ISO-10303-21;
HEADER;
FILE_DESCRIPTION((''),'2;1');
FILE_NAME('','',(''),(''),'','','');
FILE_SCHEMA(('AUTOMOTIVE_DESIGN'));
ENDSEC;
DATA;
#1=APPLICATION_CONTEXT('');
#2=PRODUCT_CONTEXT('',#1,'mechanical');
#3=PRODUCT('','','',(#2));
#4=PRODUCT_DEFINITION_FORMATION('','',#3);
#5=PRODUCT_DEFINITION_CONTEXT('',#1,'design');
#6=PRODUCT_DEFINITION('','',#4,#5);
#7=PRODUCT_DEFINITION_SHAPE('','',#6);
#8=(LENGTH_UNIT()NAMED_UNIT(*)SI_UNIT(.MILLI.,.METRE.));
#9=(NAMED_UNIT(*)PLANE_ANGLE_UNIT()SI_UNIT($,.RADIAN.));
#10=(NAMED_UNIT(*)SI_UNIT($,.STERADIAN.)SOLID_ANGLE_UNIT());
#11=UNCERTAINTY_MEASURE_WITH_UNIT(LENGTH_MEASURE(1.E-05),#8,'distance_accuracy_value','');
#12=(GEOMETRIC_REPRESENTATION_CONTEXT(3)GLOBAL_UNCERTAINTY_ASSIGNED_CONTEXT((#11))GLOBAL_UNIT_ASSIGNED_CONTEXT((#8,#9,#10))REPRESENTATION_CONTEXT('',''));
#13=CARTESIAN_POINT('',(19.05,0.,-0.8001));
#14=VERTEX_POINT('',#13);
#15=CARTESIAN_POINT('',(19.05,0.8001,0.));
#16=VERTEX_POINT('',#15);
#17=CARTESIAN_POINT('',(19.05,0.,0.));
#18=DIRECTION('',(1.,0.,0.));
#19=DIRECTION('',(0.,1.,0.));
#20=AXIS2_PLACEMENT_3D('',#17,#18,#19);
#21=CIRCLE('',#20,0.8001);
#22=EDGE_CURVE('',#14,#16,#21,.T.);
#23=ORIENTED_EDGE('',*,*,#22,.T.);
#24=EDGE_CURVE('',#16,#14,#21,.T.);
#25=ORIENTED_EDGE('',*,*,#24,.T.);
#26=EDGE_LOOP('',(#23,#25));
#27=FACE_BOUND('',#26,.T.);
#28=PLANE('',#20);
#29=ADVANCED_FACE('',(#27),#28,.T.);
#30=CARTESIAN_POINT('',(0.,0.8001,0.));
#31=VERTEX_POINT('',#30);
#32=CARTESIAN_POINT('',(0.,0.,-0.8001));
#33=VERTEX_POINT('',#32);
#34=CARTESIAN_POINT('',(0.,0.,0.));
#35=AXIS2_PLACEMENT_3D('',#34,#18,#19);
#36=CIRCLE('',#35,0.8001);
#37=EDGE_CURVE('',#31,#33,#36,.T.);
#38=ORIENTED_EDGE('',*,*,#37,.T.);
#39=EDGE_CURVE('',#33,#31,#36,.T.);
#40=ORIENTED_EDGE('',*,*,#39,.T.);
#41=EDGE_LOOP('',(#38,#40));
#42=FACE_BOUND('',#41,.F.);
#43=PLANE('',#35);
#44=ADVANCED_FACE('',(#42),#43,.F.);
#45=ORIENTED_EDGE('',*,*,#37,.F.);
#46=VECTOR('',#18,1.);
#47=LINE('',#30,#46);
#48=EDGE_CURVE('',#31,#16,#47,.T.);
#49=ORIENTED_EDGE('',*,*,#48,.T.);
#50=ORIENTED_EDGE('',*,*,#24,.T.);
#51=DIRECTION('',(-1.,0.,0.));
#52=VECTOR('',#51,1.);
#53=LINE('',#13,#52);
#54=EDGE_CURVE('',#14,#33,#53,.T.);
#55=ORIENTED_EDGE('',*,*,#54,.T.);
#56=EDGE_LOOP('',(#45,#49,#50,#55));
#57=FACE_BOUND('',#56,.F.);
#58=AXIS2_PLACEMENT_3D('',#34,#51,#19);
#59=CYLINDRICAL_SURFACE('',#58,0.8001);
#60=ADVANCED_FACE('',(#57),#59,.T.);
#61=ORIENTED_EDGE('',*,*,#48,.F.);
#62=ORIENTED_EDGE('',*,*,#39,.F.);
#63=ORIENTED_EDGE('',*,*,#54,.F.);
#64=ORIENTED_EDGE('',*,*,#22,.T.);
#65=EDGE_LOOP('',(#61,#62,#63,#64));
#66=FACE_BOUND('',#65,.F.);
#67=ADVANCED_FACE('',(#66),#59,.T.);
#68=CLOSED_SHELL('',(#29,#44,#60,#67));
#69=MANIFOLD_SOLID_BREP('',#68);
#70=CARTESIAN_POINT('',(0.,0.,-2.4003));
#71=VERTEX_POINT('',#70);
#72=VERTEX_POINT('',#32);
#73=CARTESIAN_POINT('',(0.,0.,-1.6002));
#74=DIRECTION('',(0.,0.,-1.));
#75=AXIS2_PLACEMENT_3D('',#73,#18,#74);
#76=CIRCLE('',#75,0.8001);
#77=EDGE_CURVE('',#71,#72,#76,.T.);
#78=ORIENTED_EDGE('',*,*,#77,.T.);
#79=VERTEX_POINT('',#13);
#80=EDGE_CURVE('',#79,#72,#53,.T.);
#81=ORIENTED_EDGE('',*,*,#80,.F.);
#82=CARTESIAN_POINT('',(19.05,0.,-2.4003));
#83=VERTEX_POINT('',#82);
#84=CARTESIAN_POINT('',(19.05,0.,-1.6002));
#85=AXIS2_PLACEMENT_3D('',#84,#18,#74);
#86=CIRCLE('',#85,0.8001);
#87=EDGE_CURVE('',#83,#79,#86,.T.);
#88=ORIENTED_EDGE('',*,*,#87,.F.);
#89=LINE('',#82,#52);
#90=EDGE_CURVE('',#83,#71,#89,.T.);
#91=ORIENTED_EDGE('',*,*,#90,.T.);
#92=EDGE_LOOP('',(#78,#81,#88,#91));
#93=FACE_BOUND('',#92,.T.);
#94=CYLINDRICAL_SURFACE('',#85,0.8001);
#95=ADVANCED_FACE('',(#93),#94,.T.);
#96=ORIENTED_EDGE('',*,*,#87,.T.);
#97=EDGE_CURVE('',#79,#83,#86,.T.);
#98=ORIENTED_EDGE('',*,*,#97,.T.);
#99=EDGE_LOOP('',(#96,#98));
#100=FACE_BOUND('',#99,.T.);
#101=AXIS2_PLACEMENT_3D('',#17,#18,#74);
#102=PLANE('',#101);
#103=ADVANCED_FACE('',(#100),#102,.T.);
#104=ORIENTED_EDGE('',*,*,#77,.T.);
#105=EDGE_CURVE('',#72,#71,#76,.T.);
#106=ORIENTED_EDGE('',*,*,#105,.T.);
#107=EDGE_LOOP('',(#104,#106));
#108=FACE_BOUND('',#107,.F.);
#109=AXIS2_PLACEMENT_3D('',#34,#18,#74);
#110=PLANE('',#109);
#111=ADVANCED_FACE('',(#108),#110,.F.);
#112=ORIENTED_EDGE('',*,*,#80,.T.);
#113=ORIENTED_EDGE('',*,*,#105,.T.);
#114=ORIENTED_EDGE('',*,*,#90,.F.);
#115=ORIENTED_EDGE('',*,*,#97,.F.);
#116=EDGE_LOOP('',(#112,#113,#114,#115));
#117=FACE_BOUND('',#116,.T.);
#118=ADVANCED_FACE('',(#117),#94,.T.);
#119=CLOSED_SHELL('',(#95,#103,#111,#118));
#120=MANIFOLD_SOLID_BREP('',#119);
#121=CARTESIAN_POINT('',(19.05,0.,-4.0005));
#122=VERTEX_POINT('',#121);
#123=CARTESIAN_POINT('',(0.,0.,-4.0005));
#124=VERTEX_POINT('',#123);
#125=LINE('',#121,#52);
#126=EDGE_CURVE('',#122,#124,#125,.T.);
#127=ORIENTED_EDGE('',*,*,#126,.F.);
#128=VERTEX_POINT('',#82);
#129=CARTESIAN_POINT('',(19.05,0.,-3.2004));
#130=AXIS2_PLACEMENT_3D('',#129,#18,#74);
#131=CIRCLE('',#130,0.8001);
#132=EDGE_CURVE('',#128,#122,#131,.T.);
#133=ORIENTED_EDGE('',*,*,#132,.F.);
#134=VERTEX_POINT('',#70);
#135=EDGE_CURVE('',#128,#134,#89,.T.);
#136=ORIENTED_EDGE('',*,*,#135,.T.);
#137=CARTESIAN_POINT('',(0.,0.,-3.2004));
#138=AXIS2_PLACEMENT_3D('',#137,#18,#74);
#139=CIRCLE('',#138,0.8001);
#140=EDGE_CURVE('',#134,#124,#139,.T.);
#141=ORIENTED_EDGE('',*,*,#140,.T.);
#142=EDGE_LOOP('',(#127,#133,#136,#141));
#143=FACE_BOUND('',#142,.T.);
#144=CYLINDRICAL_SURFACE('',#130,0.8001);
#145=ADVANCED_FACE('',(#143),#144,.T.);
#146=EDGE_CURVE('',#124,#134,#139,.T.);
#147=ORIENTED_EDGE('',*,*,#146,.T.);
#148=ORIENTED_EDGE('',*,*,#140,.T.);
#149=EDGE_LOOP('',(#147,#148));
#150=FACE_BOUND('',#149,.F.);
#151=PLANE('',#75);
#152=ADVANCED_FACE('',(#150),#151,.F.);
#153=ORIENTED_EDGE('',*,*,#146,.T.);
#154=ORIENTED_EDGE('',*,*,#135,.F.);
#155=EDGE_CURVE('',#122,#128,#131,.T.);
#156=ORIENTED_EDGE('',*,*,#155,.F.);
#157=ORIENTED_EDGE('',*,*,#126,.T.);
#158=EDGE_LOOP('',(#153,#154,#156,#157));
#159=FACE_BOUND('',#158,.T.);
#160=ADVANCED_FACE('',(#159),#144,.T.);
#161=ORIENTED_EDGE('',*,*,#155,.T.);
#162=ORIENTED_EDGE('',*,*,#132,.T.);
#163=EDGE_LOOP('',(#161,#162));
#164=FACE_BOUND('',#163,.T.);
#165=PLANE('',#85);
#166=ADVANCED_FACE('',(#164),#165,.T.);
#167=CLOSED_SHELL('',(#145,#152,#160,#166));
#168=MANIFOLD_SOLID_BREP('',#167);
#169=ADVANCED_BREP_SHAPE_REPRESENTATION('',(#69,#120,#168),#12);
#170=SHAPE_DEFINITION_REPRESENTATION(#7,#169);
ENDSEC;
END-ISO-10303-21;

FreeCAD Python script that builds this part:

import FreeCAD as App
import Part
import Sketcher

V = App.Vector
Q = App.Units.Quantity

doc = App.newDocument("Part")
params = doc.addObject("Spreadsheet::Sheet", "Params")
for row, (alias, value) in enumerate([
    ("sketch1_diameter", "0.063 in"),
    ("pad1_length", "0.75 in"),
    ("sketch2_diameter", "0.063 in"),
    ("pad2_length", "0.75 in"),
    ("sketch3_diameter", "0.063 in"),
    ("pad3_length", "0.75 in"),
], start=1):
    params.set(f"A{row}", alias)
    params.set(f"B{row}", "=" + value)
    params.setAlias(f"B{row}", alias)

body = doc.addObject("PartDesign::Body", "Body")
body.AllowCompound = True

# Sketch on YZ plane
sketch1 = body.newObject("Sketcher::SketchObject", "Sketch")
sketch1.AttachmentSupport = (doc.getObject("YZ_Plane"), [""])
sketch1.MapMode = "FlatFace"
sketch1.addGeometry(Part.Circle(V(0, 0, 0), V(0, 0, 1), 0.8), False)
sketch1.addConstraint([
    Sketcher.Constraint("Coincident", 0, 3, -1, 1),
    Sketcher.Constraint("Diameter", 0, Q("0.063 in")),
])
sketch1.setExpression("Constraints[1]", "Params.sketch1_diameter")
pad1 = body.newObject("PartDesign::Pad", "Pad")
pad1.Profile = sketch1
pad1.setExpression("Length", "Params.pad1_length")

# Sketch on YZ plane
sketch2 = body.newObject("Sketcher::SketchObject", "Sketch001")
sketch2.AttachmentSupport = (doc.getObject("YZ_Plane"), [""])
sketch2.MapMode = "FlatFace"
sketch2.AttachmentOffset = App.Placement(V(0, 0, 0.75 * 25.4), App.Rotation())
sketch2.addGeometry(Part.Circle(V(0, -1.6, 0), V(0, 0, 1), 0.8), False)
sketch2.addConstraint([
    Sketcher.Constraint("PointOnObject", 0, 3, -2),
    Sketcher.Constraint("Diameter", 0, Q("0.063 in")),
    Sketcher.Constraint("DistanceY", 0, 3, -1, 1, Q("0.063 in")),
])
sketch2.setExpression("Constraints[1]", "Params.sketch2_diameter")
pad2 = body.newObject("PartDesign::Pad", "Pad001")
pad2.Profile = sketch2
pad2.setExpression("Length", "Params.pad2_length")
pad2.Reversed = True

# Sketch on YZ plane
sketch3 = body.newObject("Sketcher::SketchObject", "Sketch002")
sketch3.AttachmentSupport = (doc.getObject("YZ_Plane"), [""])
sketch3.MapMode = "FlatFace"
sketch3.AttachmentOffset = App.Placement(V(0, 0, 0.75 * 25.4), App.Rotation())
sketch3.addGeometry(Part.Circle(V(0, -3.2, 0), V(0, 0, 1), 0.8), False)
sketch3.addConstraint([
    Sketcher.Constraint("PointOnObject", 0, 3, -2),
    Sketcher.Constraint("Diameter", 0, Q("0.063 in")),
    Sketcher.Constraint("DistanceY", 0, 3, -1, 1, Q("0.126 in")),
])
sketch3.setExpression("Constraints[1]", "Params.sketch3_diameter")
pad3 = body.newObject("PartDesign::Pad", "Pad002")
pad3.Profile = sketch3
pad3.setExpression("Length", "Params.pad3_length")
pad3.Reversed = True

doc.recompute()
